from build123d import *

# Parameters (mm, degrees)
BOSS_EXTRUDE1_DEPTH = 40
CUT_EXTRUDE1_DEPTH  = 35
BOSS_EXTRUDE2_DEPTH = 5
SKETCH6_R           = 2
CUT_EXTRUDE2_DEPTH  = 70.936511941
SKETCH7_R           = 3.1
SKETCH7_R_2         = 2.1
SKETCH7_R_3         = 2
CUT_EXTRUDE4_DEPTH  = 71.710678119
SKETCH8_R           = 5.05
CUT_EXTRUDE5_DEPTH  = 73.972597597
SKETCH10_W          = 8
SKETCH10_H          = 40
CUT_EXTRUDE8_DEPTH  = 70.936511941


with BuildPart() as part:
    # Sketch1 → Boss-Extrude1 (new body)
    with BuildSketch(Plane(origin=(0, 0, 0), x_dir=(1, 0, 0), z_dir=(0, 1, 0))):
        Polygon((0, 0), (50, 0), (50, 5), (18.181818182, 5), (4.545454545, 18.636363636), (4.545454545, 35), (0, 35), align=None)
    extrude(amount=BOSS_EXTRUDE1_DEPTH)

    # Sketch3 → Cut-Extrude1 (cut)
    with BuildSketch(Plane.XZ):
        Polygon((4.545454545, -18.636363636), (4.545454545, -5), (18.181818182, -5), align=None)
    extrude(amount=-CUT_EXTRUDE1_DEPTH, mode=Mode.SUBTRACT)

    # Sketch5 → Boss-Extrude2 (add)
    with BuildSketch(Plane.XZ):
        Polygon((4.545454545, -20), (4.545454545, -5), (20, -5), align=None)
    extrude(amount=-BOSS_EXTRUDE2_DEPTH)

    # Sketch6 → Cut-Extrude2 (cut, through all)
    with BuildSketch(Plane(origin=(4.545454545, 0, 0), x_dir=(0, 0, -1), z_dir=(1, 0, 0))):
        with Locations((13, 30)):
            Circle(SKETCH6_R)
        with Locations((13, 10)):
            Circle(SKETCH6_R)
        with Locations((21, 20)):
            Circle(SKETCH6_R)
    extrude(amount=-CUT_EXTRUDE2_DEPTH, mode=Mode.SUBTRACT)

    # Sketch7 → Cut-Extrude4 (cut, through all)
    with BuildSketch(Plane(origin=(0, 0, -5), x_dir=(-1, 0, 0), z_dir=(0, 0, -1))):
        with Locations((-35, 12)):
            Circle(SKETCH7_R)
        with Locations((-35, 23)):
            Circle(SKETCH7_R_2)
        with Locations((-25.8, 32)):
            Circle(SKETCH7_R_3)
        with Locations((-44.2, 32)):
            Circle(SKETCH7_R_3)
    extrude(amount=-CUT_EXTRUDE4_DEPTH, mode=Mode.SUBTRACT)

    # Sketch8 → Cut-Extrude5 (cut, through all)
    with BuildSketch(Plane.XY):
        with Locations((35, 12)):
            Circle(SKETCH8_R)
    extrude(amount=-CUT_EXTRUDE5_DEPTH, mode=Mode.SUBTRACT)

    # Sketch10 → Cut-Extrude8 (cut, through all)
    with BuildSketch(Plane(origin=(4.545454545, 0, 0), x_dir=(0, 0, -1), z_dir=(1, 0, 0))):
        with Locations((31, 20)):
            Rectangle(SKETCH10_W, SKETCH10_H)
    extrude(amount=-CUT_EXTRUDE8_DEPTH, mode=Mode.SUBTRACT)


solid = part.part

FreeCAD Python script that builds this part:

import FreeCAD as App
import Part
import Sketcher

V = App.Vector
Q = App.Units.Quantity

doc = App.newDocument("Part")
body = doc.addObject("PartDesign::Body", "Body")

sketch1 = body.newObject("Sketcher::SketchObject", "Sketch")
sketch1.AttachmentSupport = (doc.getObject("XZ_Plane"), [""])
sketch1.MapMode = "FlatFace"
sketch1.addGeometry([
    Part.LineSegment(V(0, 0, 0), V(50, 0, 0)),
    Part.LineSegment(V(50, 0, 0), V(50, -5, 0)),
    Part.LineSegment(V(50, -5, 0), V(18.181818, -5, 0)),
    Part.LineSegment(V(18.181818, -5, 0), V(4.545455, -18.636364, 0)),
    Part.LineSegment(V(4.545455, -18.636364, 0), V(4.545455, -35, 0)),
    Part.LineSegment(V(4.545455, -35, 0), V(0, -35, 0)),
    Part.LineSegment(V(0, -35, 0), V(0, 0, 0)),
], False)
sketch1.addConstraint([
    Sketcher.Constraint("Coincident", 0, 2, 1, 1),
    Sketcher.Constraint("Coincident", 1, 2, 2, 1),
    Sketcher.Constraint("Coincident", 2, 2, 3, 1),
    Sketcher.Constraint("Coincident", 3, 2, 4, 1),
    Sketcher.Constraint("Coincident", 4, 2, 5, 1),
    Sketcher.Constraint("Coincident", 5, 2, 6, 1),
    Sketcher.Constraint("Coincident", 6, 2, 0, 1),
    Sketcher.Constraint("Horizontal", 0),
    Sketcher.Constraint("Vertical", 1),
    Sketcher.Constraint("Horizontal", 2),
    Sketcher.Constraint("Vertical", 4),
    Sketcher.Constraint("Horizontal", 5),
    Sketcher.Constraint("Vertical", 6),
    Sketcher.Constraint("Coincident", 6, 2, -1, 1),
    Sketcher.Constraint("DistanceX", 0, 1, 0, 2, 50.0),
    Sketcher.Constraint("DistanceY", 1, 2, 1, 1, 5.0),
    Sketcher.Constraint("DistanceY", 6, 1, 6, 2, 35.0),
    Sketcher.Constraint("Angle", 3, Q("-135 deg")),
    Sketcher.Constraint("DistanceX", 2, 2, 2, 1, 31.818182),
    Sketcher.Constraint("Distance", 3, 19.28473),
])
pad1 = body.newObject("PartDesign::Pad", "Pad")
pad1.Profile = sketch1
pad1.Length = 40
pad1.Reversed = True

sketch2 = body.newObject("Sketcher::SketchObject", "Sketch001")
sketch2.AttachmentSupport = (doc.getObject("XZ_Plane"), [""])
sketch2.MapMode = "FlatFace"
sketch2.addGeometry([
    Part.LineSegment(V(4.545455, -5, 0), V(4.545455, -18.636364, 0)),
    Part.LineSegment(V(4.545455, -18.636364, 0), V(18.181818, -5, 0)),
    Part.LineSegment(V(18.181818, -5, 0), V(4.545455, -5, 0)),
], False)
sketch2.addConstraint([
    Sketcher.Constraint("Coincident", 0, 2, 1, 1),
    Sketcher.Constraint("Coincident", 1, 2, 2, 1),
    Sketcher.Constraint("Coincident", 2, 2, 0, 1),
    Sketcher.Constraint("Vertical", 0),
    Sketcher.Constraint("Horizontal", 2),
    Sketcher.Constraint("Equal", 2, 0),
    Sketcher.Constraint("DistanceY", 1, 2, -1, 1, 5.0),
    Sketcher.Constraint("Distance", 1, 19.28473),
    Sketcher.Constraint("DistanceX", -1, 1, 1, 2, 18.181818),
])
pocket1 = body.newObject("PartDesign::Pocket", "Pocket")
pocket1.Profile = sketch2
pocket1.Length = 35

sketch3 = body.newObject("Sketcher::SketchObject", "Sketch002")
sketch3.AttachmentSupport = (doc.getObject("XZ_Plane"), [""])
sketch3.MapMode = "FlatFace"
sketch3.addGeometry([
    Part.LineSegment(V(4.545455, -5, 0), V(4.545455, -20, 0)),
    Part.LineSegment(V(4.545455, -20, 0), V(20, -5, 0)),
    Part.LineSegment(V(20, -5, 0), V(4.545455, -5, 0)),
], False)
sketch3.addConstraint([
    Sketcher.Constraint("Coincident", 0, 2, 1, 1),
    Sketcher.Constraint("Coincident", 1, 2, 2, 1),
    Sketcher.Constraint("Coincident", 2, 2, 0, 1),
    Sketcher.Constraint("Vertical", 0),
    Sketcher.Constraint("Horizontal", 2),
    Sketcher.Constraint("DistanceY", 0, 2, 0, 1, 15.0),
    Sketcher.Constraint("DistanceY", 0, 2, -1, 1, 20.0),
    Sketcher.Constraint("DistanceX", -1, 1, 1, 2, 20.0),
    Sketcher.Constraint("DistanceX", 2, 2, 2, 1, 15.454545),
])
pad2 = body.newObject("PartDesign::Pad", "Pad001")
pad2.Profile = sketch3
pad2.Length = 5
pad2.Reversed = True

sketch4 = body.newObject("Sketcher::SketchObject", "Sketch003")
sketch4.AttachmentSupport = (doc.getObject("YZ_Plane"), [""])
sketch4.MapMode = "FlatFace"
sketch4.AttachmentOffset = App.Placement(V(0, 0, 4.545455), App.Rotation())
sketch4.addGeometry([
    Part.Circle(V(30, -13, 0), V(0, 0, 1), 2),
    Part.Circle(V(10, -13, 0), V(0, 0, 1), 2),
    Part.Circle(V(20, -21, 0), V(0, 0, 1), 2),
], False)
sketch4.addConstraint([
    Sketcher.Constraint("Equal", 0, 1),
    Sketcher.Constraint("Equal", 1, 2),
    Sketcher.Constraint("Horizontal", 0, 3, 1, 3),
    Sketcher.Constraint("Diameter", 0, 4.0),
    Sketcher.Constraint("DistanceX", -1, 1, 0, 3, 30.0),
    Sketcher.Constraint("DistanceY", 0, 3, -1, 1, 13.0),
    Sketcher.Constraint("DistanceX", -1, 1, 1, 3, 10.0),
    Sketcher.Constraint("DistanceX", -1, 1, 2, 3, 20.0),
    Sketcher.Constraint("DistanceY", 2, 3, -1, 1, 21.0),
])
pocket2 = body.newObject("PartDesign::Pocket", "Pocket001")
pocket2.Profile = sketch4
pocket2.Type = "ThroughAll"

sketch5 = body.newObject("Sketcher::SketchObject", "Sketch004")
sketch5.AttachmentSupport = (doc.getObject("XY_Plane"), [""])
sketch5.MapMode = "FlatFace"
sketch5.AttachmentOffset = App.Placement(V(0, 0, -5), App.Rotation())
sketch5.addGeometry([
    Part.Circle(V(35, 12, 0), V(0, 0, 1), 3.1),
    Part.Circle(V(35, 23, 0), V(0, 0, 1), 2.1),
    Part.Circle(V(25.8, 32, 0), V(0, 0, 1), 2),
    Part.Circle(V(44.2, 32, 0), V(0, 0, 1), 2),
], False)
sketch5.addConstraint([
    Sketcher.Constraint("Equal", 2, 3),
    Sketcher.Constraint("Horizontal", 2, 3, 3, 3),
    Sketcher.Constraint("Vertical", 0, 3, 1, 3),
    Sketcher.Constraint("Diameter", 2, 4.0),
    Sketcher.Constraint("Diameter", 0, 6.2),
    Sketcher.Constraint("Diameter", 1, 4.2),
    Sketcher.Constraint("DistanceX", -1, 1, 0, 3, 35.0),
    Sketcher.Constraint("DistanceY", -1, 1, 0, 3, 12.0),
    Sketcher.Constraint("DistanceY", -1, 1, 1, 3, 23.0),
    Sketcher.Constraint("DistanceY", -1, 1, 2, 3, 32.0),
    Sketcher.Constraint("DistanceX", -1, 1, 2, 3, 25.8),
    Sketcher.Constraint("DistanceX", -1, 1, 3, 3, 44.2),
])
pocket3 = body.newObject("PartDesign::Pocket", "Pocket002")
pocket3.Profile = sketch5
pocket3.Type = "ThroughAll"
pocket3.Reversed = True

sketch6 = body.newObject("Sketcher::SketchObject", "Sketch005")
sketch6.AttachmentSupport = (doc.getObject("XY_Plane"), [""])
sketch6.MapMode = "FlatFace"
sketch6.addGeometry(Part.Circle(V(35, 12, 0), V(0, 0, 1), 5.05), False)
sketch6.addConstraint([
    Sketcher.Constraint("Diameter", 0, 10.1),
    Sketcher.Constraint("DistanceX", -1, 1, 0, 3, 35.0),
    Sketcher.Constraint("DistanceY", -1, 1, 0, 3, 12.0),
])
pocket4 = body.newObject("PartDesign::Pocket", "Pocket003")
pocket4.Profile = sketch6
pocket4.Type = "ThroughAll"

sketch7 = body.newObject("Sketcher::SketchObject", "Sketch006")
sketch7.AttachmentSupport = (doc.getObject("YZ_Plane"), [""])
sketch7.MapMode = "FlatFace"
sketch7.AttachmentOffset = App.Placement(V(0, 0, 4.545455), App.Rotation())
sketch7.addGeometry([
    Part.LineSegment(V(40, -27, 0), V(0, -27, 0)),
    Part.LineSegment(V(0, -27, 0), V(0, -35, 0)),
    Part.LineSegment(V(0, -35, 0), V(40, -35, 0)),
    Part.LineSegment(V(40, -35, 0), V(40, -27, 0)),
], False)
sketch7.addConstraint([
    Sketcher.Constraint("Coincident", 0, 2, 1, 1),
    Sketcher.Constraint("Coincident", 1, 2, 2, 1),
    Sketcher.Constraint("Coincident", 2, 2, 3, 1),
    Sketcher.Constraint("Coincident", 3, 2, 0, 1),
    Sketcher.Constraint("Horizontal", 0),
    Sketcher.Constraint("Vertical", 1),
    Sketcher.Constraint("Horizontal", 2),
    Sketcher.Constraint("Vertical", 3),
    Sketcher.Constraint("PointOnObject", 0, 2, -2),
    Sketcher.Constraint("DistanceX", 0, 2, 0, 1, 40.0),
    Sketcher.Constraint("DistanceY", 1, 2, 1, 1, 8.0),
    Sketcher.Constraint("DistanceY", 0, 2, -1, 1, 27.0),
])
pocket5 = body.newObject("PartDesign::Pocket", "Pocket004")
pocket5.Profile = sketch7
pocket5.Type = "ThroughAll"

doc.recompute()
